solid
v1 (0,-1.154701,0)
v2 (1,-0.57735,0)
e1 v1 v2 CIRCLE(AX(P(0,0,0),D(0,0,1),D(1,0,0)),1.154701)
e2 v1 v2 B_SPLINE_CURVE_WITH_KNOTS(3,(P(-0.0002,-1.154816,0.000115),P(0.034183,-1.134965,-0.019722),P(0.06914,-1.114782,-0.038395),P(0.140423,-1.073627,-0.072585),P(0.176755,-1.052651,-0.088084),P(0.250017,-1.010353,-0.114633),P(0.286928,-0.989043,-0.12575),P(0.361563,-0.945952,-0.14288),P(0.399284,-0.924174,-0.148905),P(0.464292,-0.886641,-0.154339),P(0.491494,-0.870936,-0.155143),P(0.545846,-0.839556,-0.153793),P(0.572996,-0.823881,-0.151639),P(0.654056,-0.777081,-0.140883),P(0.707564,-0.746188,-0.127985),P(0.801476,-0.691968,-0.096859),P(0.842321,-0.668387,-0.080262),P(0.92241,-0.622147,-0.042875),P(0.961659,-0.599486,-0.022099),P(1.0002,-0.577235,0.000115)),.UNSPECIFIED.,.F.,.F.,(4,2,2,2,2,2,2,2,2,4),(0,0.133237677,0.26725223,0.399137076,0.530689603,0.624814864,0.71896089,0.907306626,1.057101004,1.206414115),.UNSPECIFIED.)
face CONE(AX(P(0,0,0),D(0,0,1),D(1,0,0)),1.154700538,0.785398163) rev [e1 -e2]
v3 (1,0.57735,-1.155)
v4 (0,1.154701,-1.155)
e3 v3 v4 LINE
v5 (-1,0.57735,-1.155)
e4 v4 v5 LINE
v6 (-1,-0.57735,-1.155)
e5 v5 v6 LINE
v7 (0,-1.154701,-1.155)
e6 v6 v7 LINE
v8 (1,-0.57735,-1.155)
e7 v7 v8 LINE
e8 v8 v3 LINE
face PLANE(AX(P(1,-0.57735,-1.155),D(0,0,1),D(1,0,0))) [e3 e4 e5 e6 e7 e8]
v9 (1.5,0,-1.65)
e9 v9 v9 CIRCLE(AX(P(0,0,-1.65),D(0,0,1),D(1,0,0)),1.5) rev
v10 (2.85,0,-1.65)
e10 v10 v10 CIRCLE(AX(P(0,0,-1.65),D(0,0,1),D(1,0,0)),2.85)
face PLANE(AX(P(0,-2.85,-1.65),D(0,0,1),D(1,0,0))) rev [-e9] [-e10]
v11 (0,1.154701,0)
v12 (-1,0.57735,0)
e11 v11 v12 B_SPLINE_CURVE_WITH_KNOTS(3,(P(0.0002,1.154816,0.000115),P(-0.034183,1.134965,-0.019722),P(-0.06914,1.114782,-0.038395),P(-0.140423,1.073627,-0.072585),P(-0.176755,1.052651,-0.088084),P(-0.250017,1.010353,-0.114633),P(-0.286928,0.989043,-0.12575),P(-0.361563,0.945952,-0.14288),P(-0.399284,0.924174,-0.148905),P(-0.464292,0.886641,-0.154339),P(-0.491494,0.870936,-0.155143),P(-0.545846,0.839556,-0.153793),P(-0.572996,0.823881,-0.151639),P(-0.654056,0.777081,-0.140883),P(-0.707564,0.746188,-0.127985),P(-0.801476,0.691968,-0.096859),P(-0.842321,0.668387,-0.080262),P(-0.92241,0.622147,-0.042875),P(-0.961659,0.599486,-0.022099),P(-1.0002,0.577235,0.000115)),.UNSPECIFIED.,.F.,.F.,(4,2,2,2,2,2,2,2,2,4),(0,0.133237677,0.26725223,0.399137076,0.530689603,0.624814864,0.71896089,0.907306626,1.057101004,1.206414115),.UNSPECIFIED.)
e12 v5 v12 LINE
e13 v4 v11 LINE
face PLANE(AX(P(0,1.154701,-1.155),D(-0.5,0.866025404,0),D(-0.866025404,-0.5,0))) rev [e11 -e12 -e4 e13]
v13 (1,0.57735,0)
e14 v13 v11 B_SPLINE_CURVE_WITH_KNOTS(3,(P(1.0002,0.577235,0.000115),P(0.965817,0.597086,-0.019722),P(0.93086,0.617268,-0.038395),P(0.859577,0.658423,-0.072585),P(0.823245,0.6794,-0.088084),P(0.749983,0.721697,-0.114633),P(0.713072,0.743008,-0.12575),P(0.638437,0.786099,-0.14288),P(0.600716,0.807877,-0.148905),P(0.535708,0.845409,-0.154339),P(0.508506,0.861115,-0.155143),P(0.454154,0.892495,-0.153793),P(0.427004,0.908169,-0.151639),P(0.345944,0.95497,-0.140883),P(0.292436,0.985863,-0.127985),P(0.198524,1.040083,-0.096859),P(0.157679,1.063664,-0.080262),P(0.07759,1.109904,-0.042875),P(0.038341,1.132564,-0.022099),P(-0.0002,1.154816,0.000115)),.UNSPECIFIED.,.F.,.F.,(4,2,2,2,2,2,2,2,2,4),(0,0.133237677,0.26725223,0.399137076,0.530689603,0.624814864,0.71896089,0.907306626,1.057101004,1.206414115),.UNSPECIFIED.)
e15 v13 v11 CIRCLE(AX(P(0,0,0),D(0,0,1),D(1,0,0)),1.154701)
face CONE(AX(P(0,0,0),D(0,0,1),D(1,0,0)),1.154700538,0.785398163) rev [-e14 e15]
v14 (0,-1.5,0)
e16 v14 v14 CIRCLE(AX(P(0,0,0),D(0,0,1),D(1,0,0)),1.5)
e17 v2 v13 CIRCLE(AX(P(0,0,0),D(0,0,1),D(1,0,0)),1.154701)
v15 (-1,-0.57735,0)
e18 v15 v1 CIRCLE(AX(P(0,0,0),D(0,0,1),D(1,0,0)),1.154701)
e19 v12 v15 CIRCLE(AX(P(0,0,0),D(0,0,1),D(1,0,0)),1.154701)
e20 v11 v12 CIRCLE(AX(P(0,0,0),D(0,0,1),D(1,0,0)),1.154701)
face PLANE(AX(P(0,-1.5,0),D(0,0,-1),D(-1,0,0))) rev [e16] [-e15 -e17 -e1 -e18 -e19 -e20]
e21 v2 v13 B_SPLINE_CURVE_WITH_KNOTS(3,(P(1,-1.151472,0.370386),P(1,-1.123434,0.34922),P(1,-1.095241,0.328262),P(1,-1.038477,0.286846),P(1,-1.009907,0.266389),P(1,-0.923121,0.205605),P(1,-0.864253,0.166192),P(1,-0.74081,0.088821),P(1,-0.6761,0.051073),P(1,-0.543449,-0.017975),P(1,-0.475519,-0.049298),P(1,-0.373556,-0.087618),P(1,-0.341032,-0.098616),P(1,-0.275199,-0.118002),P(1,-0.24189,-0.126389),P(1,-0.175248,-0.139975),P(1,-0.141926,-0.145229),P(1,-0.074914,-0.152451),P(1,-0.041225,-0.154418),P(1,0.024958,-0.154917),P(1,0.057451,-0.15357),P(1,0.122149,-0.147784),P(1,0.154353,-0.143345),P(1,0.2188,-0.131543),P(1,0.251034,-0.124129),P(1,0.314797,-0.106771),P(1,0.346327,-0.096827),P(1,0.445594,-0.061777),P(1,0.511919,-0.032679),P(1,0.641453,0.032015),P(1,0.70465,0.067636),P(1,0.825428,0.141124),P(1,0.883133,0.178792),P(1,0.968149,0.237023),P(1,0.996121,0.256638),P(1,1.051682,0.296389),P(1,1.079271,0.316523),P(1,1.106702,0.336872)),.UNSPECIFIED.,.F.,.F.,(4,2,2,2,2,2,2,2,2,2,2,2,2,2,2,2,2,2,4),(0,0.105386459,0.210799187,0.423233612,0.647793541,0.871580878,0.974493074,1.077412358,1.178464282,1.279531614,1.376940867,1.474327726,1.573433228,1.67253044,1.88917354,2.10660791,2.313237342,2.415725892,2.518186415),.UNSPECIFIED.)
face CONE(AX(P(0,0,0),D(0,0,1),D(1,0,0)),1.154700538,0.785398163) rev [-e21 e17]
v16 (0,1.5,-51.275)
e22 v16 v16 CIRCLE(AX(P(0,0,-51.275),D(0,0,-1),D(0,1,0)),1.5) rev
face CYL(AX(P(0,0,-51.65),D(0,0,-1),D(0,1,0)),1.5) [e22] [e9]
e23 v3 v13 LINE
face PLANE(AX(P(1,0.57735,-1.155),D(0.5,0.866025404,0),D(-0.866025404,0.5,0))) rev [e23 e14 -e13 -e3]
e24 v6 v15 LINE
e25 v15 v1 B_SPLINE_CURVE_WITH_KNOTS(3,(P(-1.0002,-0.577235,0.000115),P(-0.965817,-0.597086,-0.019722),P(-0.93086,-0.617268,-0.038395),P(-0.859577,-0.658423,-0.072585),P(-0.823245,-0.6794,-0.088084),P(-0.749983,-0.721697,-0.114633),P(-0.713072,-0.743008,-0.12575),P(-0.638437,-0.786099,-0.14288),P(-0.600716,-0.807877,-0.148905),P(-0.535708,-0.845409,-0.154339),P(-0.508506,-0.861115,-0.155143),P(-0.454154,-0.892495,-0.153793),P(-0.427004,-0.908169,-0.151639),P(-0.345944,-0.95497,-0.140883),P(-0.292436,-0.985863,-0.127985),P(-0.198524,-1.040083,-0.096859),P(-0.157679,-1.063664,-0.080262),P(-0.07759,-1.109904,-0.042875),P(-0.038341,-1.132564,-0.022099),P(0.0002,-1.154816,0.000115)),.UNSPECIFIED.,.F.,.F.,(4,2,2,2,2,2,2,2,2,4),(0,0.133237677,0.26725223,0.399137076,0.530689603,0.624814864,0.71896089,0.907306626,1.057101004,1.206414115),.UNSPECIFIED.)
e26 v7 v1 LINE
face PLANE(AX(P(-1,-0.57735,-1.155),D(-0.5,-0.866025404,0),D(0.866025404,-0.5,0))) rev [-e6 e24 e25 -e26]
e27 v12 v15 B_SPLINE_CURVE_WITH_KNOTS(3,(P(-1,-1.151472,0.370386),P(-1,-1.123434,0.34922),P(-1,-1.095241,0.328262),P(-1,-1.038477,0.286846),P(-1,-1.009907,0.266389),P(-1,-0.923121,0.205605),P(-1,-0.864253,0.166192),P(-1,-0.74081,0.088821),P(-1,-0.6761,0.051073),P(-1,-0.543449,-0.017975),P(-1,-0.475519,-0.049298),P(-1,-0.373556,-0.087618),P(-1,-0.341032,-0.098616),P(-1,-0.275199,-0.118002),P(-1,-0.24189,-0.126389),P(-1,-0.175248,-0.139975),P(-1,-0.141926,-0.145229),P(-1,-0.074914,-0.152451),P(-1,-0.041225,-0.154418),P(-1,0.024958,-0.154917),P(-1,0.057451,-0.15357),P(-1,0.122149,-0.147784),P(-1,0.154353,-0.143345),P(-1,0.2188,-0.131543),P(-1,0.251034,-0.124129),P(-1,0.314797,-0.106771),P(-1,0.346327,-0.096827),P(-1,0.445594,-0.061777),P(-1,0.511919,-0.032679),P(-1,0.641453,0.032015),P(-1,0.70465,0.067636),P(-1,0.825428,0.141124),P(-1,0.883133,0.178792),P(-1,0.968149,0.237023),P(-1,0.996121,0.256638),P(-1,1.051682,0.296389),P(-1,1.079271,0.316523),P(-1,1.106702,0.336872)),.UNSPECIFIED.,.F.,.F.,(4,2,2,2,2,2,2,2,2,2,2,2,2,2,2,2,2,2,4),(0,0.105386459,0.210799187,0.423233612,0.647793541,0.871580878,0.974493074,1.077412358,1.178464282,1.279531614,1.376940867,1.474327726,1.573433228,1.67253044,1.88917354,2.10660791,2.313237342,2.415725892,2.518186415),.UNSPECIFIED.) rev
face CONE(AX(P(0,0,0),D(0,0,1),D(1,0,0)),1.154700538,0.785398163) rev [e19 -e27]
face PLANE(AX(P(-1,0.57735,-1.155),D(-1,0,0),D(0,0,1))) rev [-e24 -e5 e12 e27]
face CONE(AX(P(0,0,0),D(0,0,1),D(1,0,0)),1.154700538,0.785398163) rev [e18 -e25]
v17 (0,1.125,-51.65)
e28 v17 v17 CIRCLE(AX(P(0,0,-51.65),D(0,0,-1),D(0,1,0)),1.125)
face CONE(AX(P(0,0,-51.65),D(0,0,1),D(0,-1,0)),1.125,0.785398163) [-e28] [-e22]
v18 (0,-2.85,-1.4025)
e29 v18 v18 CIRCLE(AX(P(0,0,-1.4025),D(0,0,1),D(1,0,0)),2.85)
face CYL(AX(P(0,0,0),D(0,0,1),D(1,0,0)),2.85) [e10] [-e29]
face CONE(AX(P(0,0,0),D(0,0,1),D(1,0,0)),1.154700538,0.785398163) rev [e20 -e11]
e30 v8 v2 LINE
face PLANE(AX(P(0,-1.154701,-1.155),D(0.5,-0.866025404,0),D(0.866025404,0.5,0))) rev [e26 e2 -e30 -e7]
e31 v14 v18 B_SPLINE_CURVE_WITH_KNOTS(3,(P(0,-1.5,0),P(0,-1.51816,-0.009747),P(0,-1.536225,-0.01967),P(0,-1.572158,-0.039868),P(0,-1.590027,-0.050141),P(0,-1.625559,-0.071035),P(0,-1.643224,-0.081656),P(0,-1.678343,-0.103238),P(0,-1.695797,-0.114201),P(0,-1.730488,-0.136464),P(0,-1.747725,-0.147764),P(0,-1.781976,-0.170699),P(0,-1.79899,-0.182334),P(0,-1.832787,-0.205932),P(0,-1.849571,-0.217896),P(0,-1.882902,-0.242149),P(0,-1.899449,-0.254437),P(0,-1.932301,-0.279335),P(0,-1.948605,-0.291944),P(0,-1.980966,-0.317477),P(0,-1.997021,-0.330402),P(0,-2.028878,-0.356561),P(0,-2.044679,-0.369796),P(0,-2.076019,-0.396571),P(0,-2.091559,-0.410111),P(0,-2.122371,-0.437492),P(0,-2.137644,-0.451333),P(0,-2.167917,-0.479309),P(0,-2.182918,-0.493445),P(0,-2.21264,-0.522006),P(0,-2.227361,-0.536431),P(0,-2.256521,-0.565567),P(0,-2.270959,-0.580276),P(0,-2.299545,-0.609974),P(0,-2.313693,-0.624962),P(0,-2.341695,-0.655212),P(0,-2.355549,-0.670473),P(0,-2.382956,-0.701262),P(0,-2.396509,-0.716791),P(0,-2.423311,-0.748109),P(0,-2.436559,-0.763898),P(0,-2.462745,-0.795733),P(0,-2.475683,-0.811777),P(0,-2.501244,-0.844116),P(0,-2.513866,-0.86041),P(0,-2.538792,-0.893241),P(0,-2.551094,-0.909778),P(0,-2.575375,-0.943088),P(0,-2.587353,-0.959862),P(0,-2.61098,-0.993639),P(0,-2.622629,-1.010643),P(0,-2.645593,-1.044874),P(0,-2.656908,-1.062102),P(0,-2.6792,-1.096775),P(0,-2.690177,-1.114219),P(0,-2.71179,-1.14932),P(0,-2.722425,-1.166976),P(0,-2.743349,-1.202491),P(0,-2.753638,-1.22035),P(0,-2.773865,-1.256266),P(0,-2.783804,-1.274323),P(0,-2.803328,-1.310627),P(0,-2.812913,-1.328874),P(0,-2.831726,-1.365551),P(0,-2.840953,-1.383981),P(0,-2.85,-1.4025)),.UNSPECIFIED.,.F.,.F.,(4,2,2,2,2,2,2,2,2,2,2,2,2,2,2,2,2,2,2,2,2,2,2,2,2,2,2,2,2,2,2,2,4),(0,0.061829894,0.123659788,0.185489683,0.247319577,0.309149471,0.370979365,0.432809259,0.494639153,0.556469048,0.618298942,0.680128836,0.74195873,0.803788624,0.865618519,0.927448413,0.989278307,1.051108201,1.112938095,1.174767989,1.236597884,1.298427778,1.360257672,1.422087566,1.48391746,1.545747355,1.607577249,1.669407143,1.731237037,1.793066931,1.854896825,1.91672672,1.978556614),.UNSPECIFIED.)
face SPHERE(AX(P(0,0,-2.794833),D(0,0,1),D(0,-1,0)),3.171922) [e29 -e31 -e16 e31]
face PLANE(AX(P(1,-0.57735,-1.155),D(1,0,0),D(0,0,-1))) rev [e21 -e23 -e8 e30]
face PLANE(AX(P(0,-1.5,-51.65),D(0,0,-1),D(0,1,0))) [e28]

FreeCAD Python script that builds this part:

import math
import FreeCAD as App
import Part
import Sketcher
Q = App.Units.Quantity


def edges_at(feature, points):
    """Names of the edges that pass closest to the given points."""
    edges = feature.Shape.Edges
    near = lambda p: min(range(len(edges)), key=lambda i: edges[i].distToShape(Part.Vertex(*p))[0])
    return sorted({f"Edge{near(p) + 1}" for p in points})


def add_polygon(sketch, points):
    """Adds a closed chain of lines whose ends are joined by coincident constraints."""
    first, n = sketch.GeometryCount, len(points)
    for a, b in zip(points, points[1:] + points[:1]):
        sketch.addGeometry(Part.LineSegment(App.Vector(*a, 0), App.Vector(*b, 0)), False)
    for i in range(n):
        sketch.addConstraint(Sketcher.Constraint("Coincident", first + i, 2, first + (i + 1) % n, 1))

doc = App.newDocument("Part")
body = doc.addObject("PartDesign::Body", "Body")

sketch1 = body.newObject("Sketcher::SketchObject", "Sketch")
sketch1.AttachmentSupport = (doc.getObject("YZ_Plane"), [""])
sketch1.MapMode = "FlatFace"
add_polygon(sketch1, [(1.5, -1.6), (0, -1.6), (0, -51.6), (1.5, -51.6)])
sketch1.addConstraint([
    Sketcher.Constraint("Horizontal", 0),
    Sketcher.Constraint("Vertical", 1),
    Sketcher.Constraint("Horizontal", 2),
    Sketcher.Constraint("Vertical", 3),
    Sketcher.Constraint("PointOnObject", 0, 2, -2),
    Sketcher.Constraint("DistanceY", 1, 2, 1, 1, 50.0),
    Sketcher.Constraint("DistanceX", 0, 2, 0, 1, 1.5),
    Sketcher.Constraint("DistanceY", 0, 2, -1, 1, 1.65),
])
revolution = body.newObject("PartDesign::Revolution", "Revolution")
revolution.Profile = sketch1
revolution.ReferenceAxis = (sketch1, ["V_Axis"])
revolution.Angle = 360
doc.recompute()

chamfer = body.newObject("PartDesign::Chamfer", "Chamfer")
chamfer.Base = (revolution, edges_at(revolution, [(0, -1.5, -51.65)]))
chamfer.Size = 0.375

sketch2 = body.newObject("Sketcher::SketchObject", "Sketch001")
sketch2.AttachmentSupport = (doc.getObject("YZ_Plane"), [""])
sketch2.MapMode = "FlatFace"
sketch2.addGeometry([
    Part.LineSegment(App.Vector(2.85, -1.65, 0), App.Vector(2.85, -1.4, 0)),
    Part.ArcOfCircle(Part.Circle(App.Vector(0, -2.79, 0), App.Vector(0, 0, 1), 3.17), math.radians(26), math.radians(62)),
    Part.LineSegment(App.Vector(1.5, 0, 0), App.Vector(0, 0, 0)),
    Part.LineSegment(App.Vector(0, 0, 0), App.Vector(0, -1.65, 0)),
    Part.LineSegment(App.Vector(0, -1.65, 0), App.Vector(2.85, -1.65, 0)),
], False)
sketch2.addConstraint([
    Sketcher.Constraint("Coincident", 0, 2, 1, 1),
    Sketcher.Constraint("Coincident", 1, 2, 2, 1),
    Sketcher.Constraint("Coincident", 2, 2, 3, 1),
    Sketcher.Constraint("Coincident", 3, 2, 4, 1),
    Sketcher.Constraint("Coincident", 4, 2, 0, 1),
    Sketcher.Constraint("Vertical", 0),
    Sketcher.Constraint("Horizontal", 2),
    Sketcher.Constraint("Vertical", 3),
    Sketcher.Constraint("Horizontal", 4),
    Sketcher.Constraint("Coincident", 2, 2, -1, 1),
    Sketcher.Constraint("PointOnObject", 1, 3, -2),
    Sketcher.Constraint("DistanceX", 2, 2, 2, 1, 1.5),
    Sketcher.Constraint("DistanceX", 4, 1, 4, 2, 2.85),
    Sketcher.Constraint("DistanceY", 3, 2, 3, 1, 1.65),
    Sketcher.Constraint("DistanceY", 0, 1, 0, 2, 0.2475),
])
revolution2 = body.newObject("PartDesign::Revolution", "Revolution001")
revolution2.Profile = sketch2
revolution2.ReferenceAxis = (sketch2, ["V_Axis"])
revolution2.Angle = 360

sketch3 = body.newObject("Sketcher::SketchObject", "Sketch002")
sketch3.AttachmentSupport = (doc.getObject("XY_Plane"), [""])
sketch3.MapMode = "FlatFace"
add_polygon(sketch3, [(1, -0.6), (1, 0.6), (0, 1.2), (-1, 0.6), (-1, -0.6), (0, -1.2)])
sketch3.addConstraint([
    Sketcher.Constraint("Vertical", 0),
    Sketcher.Constraint("Vertical", 3),
    Sketcher.Constraint("Symmetric", 0, 2, 3, 2, -1, 1),
    Sketcher.Constraint("Symmetric", 1, 2, 4, 2, -1, 1),
    Sketcher.Constraint("PointOnObject", 1, 2, -2),
    Sketcher.Constraint("Parallel", 2, 5),
    Sketcher.Constraint("Horizontal", 0, 2, 2, 2),
    Sketcher.Constraint("Angle", 1, Q("150 deg")),
    Sketcher.Constraint("DistanceX", -1, 1, 0, 2, 1.0),
    Sketcher.Constraint("DistanceY", 0, 1, 0, 2, 1.154701),
])
pocket1 = body.newObject("PartDesign::Pocket", "Pocket")
pocket1.Profile = sketch3
pocket1.Length = 1.155

sketch4 = body.newObject("Sketcher::SketchObject", "Sketch003")
sketch4.AttachmentSupport = (doc.getObject("YZ_Plane"), [""])
sketch4.MapMode = "FlatFace"
add_polygon(sketch4, [(0, 0), (-1.2, 0), (0, -1.2)])
sketch4.addConstraint([
    Sketcher.Constraint("Horizontal", 0),
    Sketcher.Constraint("Vertical", 2),
    Sketcher.Constraint("Coincident", 2, 2, -1, 1),
    Sketcher.Constraint("Equal", 0, 2),
    Sketcher.Constraint("DistanceX", 0, 2, 0, 1, 1.154701),
])
groove = body.newObject("PartDesign::Groove", "Groove")
groove.Profile = sketch4
groove.ReferenceAxis = (sketch4, ["V_Axis"])
groove.Angle = 360

doc.recompute()
